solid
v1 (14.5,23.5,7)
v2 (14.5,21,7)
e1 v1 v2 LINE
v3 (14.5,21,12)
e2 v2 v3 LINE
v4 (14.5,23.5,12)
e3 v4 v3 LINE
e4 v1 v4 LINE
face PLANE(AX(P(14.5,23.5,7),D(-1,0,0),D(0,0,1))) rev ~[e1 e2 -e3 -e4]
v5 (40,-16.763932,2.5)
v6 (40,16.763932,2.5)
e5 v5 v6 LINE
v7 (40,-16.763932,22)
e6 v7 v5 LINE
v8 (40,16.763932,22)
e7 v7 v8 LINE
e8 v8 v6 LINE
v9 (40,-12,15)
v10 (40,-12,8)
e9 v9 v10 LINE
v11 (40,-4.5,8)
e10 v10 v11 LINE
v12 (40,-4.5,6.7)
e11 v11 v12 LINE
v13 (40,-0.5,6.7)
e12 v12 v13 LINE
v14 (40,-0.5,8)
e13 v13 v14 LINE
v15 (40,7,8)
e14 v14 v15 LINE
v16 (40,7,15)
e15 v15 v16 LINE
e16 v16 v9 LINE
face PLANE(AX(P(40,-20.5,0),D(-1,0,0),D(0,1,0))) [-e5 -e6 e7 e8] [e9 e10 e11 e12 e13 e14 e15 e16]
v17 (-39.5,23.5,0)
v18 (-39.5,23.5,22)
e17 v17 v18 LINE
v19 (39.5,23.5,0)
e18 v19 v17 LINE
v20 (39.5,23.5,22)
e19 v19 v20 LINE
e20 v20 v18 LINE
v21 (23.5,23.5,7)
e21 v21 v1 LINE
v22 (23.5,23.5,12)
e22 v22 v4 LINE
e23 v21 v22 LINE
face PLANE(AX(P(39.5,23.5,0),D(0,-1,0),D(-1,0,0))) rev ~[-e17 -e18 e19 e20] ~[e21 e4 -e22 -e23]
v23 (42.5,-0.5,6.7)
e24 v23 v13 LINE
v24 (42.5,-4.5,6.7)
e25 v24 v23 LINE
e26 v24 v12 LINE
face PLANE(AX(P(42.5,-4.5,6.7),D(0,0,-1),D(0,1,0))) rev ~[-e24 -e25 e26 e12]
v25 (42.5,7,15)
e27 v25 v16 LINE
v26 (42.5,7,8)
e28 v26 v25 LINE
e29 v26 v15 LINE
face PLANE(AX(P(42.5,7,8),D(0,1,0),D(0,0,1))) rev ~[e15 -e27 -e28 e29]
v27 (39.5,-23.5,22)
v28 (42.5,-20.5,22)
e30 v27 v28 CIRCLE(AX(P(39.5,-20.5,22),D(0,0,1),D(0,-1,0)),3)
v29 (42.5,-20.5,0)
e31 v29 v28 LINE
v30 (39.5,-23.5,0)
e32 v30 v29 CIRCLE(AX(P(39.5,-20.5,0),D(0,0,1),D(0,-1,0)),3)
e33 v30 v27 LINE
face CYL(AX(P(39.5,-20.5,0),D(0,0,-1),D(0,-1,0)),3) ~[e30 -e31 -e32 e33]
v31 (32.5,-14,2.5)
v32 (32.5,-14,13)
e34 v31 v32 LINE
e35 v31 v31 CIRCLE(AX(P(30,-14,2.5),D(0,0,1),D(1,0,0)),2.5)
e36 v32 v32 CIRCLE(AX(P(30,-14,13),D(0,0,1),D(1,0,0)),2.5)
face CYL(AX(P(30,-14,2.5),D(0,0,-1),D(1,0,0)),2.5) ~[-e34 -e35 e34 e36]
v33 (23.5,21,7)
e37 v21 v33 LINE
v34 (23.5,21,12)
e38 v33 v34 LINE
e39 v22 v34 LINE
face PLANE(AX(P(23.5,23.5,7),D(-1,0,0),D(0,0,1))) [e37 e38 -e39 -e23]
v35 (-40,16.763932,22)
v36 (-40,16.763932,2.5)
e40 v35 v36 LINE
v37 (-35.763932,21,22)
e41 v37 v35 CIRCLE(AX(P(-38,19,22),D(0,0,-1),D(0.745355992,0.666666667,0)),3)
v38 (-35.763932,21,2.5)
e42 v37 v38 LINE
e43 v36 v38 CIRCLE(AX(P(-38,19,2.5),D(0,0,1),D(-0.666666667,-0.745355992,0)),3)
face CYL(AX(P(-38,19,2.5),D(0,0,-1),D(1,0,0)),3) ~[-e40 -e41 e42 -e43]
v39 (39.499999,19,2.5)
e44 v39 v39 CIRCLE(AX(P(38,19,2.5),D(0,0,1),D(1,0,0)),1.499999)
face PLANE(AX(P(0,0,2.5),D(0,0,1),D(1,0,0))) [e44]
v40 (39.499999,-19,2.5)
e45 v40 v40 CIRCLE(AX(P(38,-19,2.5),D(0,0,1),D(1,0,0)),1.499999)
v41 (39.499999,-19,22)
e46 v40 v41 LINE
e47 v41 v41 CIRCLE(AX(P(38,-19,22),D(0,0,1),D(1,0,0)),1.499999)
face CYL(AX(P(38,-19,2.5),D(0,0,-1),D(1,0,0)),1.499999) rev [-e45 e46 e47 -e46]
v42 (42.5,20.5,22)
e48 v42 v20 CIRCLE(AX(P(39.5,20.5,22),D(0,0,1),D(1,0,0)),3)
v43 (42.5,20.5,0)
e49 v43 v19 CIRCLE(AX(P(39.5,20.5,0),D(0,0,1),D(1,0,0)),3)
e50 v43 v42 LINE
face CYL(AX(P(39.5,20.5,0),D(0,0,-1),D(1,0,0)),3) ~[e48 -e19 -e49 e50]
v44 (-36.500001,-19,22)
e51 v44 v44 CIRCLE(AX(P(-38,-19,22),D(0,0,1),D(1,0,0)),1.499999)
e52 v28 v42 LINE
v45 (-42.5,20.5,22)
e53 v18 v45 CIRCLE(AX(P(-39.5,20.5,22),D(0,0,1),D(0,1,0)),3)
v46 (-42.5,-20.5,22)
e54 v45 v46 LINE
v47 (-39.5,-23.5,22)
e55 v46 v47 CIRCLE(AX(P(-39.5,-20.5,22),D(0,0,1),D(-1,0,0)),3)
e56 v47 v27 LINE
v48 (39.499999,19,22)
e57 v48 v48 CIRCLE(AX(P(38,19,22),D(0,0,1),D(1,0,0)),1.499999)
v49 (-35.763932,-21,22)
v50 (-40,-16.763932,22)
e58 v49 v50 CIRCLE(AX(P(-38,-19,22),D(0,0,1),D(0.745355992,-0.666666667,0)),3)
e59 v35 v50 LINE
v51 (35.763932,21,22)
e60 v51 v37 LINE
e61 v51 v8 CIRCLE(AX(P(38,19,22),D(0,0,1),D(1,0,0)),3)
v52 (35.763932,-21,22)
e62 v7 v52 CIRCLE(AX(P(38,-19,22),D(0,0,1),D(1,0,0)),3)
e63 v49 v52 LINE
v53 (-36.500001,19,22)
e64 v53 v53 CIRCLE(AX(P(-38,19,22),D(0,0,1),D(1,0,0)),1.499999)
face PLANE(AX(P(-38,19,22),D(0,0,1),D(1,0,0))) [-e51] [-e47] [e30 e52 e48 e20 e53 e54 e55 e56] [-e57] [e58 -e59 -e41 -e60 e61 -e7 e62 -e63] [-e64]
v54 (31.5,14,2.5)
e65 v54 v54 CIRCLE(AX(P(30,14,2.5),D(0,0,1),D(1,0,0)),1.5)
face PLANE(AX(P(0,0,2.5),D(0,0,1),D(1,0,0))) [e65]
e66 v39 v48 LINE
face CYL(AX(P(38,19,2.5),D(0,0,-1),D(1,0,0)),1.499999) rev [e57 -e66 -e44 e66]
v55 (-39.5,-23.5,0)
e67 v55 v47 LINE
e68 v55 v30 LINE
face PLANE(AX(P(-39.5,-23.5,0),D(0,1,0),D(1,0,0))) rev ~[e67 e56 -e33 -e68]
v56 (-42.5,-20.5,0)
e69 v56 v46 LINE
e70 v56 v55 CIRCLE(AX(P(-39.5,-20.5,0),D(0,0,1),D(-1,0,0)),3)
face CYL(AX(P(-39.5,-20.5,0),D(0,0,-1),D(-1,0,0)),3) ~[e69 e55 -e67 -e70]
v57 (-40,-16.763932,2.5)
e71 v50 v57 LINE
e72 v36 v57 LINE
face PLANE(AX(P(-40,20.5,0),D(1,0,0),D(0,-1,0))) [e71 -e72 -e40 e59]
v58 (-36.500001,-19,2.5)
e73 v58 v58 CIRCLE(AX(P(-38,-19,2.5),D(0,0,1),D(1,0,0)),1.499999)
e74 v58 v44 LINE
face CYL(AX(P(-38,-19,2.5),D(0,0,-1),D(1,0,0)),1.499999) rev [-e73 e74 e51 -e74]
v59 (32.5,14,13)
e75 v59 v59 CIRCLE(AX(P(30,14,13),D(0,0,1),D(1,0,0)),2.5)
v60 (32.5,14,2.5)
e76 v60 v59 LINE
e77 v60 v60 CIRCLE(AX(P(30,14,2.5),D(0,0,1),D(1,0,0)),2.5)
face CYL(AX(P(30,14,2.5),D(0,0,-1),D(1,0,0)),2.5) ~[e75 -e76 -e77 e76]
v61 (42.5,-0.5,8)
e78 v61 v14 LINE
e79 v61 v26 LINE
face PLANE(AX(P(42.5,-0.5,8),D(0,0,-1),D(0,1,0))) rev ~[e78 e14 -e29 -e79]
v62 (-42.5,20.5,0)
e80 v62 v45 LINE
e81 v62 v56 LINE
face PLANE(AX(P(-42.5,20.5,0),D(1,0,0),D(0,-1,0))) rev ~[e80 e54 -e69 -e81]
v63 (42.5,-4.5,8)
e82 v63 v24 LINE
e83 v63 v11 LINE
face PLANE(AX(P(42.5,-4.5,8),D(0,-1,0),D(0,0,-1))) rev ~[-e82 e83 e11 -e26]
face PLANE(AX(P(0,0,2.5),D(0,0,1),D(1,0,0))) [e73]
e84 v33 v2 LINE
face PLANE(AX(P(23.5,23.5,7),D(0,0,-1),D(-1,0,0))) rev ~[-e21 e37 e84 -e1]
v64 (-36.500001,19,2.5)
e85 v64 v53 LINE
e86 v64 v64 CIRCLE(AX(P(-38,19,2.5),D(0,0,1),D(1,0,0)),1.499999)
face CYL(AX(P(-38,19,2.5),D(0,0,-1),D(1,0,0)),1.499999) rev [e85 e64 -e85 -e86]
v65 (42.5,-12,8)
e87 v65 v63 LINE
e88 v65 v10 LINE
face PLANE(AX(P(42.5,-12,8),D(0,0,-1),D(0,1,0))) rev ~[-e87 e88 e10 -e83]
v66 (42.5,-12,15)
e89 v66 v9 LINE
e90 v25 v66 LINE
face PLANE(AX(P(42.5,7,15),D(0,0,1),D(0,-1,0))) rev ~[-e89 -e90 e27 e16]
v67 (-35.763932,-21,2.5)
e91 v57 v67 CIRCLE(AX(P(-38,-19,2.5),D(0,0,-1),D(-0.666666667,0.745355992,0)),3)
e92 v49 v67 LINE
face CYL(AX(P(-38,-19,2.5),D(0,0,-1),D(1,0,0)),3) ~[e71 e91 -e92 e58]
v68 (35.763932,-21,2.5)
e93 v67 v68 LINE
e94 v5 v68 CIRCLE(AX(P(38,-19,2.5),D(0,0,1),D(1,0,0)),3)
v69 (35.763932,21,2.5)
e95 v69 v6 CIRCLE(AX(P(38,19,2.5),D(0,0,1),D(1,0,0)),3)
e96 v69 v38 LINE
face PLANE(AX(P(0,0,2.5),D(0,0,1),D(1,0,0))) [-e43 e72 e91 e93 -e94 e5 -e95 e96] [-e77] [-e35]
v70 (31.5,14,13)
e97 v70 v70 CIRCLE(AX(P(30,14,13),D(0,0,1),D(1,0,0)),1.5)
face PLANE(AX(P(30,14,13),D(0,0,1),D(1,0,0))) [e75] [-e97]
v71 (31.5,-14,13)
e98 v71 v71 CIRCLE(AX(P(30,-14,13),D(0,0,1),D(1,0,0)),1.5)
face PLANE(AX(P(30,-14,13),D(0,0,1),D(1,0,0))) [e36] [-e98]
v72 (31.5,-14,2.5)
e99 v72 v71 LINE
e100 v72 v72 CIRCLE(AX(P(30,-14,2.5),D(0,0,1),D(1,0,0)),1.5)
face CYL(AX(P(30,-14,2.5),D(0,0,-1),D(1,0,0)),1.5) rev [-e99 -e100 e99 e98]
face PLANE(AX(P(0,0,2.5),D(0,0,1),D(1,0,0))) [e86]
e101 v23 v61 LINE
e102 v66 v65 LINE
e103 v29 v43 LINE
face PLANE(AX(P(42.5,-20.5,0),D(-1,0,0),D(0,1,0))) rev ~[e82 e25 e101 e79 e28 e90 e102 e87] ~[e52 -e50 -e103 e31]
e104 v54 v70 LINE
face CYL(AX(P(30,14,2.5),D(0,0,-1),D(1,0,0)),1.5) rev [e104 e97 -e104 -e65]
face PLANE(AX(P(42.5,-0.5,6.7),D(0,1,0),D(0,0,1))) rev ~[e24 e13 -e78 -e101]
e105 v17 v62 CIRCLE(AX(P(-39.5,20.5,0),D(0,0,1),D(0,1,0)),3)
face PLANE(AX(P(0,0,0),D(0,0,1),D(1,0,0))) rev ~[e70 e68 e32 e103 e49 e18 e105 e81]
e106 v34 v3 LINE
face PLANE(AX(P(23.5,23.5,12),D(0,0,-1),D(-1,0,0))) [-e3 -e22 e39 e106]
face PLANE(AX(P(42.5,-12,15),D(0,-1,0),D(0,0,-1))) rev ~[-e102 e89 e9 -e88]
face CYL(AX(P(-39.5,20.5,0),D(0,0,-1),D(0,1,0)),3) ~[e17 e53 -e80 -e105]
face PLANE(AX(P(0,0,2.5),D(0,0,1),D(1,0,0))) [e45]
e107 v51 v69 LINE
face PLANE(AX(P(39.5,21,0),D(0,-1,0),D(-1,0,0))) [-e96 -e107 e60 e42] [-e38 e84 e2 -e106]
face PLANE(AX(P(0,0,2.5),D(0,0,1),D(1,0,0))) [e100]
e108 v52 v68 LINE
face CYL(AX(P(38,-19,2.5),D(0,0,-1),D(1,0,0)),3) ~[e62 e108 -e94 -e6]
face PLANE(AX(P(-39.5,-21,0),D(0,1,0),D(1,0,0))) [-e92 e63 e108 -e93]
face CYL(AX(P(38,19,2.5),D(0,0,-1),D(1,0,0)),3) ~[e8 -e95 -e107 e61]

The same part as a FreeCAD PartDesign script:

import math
import FreeCAD as App
import Part
import Sketcher

V = App.Vector


def faces_at(feature, points):
    """Names of the faces that lie closest to the given points."""
    faces = feature.Shape.Faces
    near = lambda p: min(range(len(faces)), key=lambda i: faces[i].distToShape(Part.Vertex(*p))[0])
    return sorted({f"Face{near(p) + 1}" for p in points})


def add_polygon(sketch, points):
    """Adds a closed chain of lines whose ends are joined by coincident constraints."""
    first, n = sketch.GeometryCount, len(points)
    for a, b in zip(points, points[1:] + points[:1]):
        sketch.addGeometry(Part.LineSegment(App.Vector(*a, 0), App.Vector(*b, 0)), False)
    for i in range(n):
        sketch.addConstraint(Sketcher.Constraint("Coincident", first + i, 2, first + (i + 1) % n, 1))

doc = App.newDocument("Part")
params = doc.addObject("Spreadsheet::Sheet", "Params")
for row, (alias, value) in enumerate([
    ("sketch1_radius", "3 mm"),
    ("sketch1_width", "79 mm"),
    ("sketch1_height", "41 mm"),
    ("pad1_length", "22 mm"),
    ("thickness_wall", "2.5 mm"),
    ("sketch2_diameter", "6 mm"),
    ("sketch2_diameter2", "2.999999 mm"),
    ("pad2_length", "19.5 mm"),
    ("sketch3_width", "19 mm"),
    ("sketch3_width2", "4 mm"),
    ("sketch3_height", "7 mm"),
    ("sketch3_height2", "1.3 mm"),
    ("pocket1_length", "2.5 mm"),
    ("sketch4_width", "9 mm"),
    ("sketch4_height", "5 mm"),
    ("pocket2_length", "2.5 mm"),
    ("sketch5_diameter", "5 mm"),
    ("sketch5_diameter2", "3 mm"),
    ("pad3_length", "10.5 mm"),
], start=1):
    params.set(f"A{row}", alias)
    params.set(f"B{row}", "=" + value)
    params.setAlias(f"B{row}", alias)

body = doc.addObject("PartDesign::Body", "Body")

sketch1 = body.newObject("Sketcher::SketchObject", "Sketch")
sketch1.AttachmentSupport = (doc.getObject("XY_Plane"), [""])
sketch1.MapMode = "FlatFace"
sketch1.addGeometry([
    Part.ArcOfCircle(Part.Circle(V(39.5, 20.5, 0), V(0, 0, 1), 3), math.radians(0), math.radians(90)),
    Part.LineSegment(V(39.5, 23.5, 0), V(-39.5, 23.5, 0)),
    Part.ArcOfCircle(Part.Circle(V(-39.5, 20.5, 0), V(0, 0, 1), 3), math.radians(90), math.radians(180)),
    Part.LineSegment(V(-42.5, 20.5, 0), V(-42.5, -20.5, 0)),
    Part.ArcOfCircle(Part.Circle(V(-39.5, -20.5, 0), V(0, 0, 1), 3), math.radians(180), math.radians(270)),
    Part.LineSegment(V(-39.5, -23.5, 0), V(39.5, -23.5, 0)),
    Part.ArcOfCircle(Part.Circle(V(39.5, -20.5, 0), V(0, 0, 1), 3), math.radians(-90), math.radians(0)),
    Part.LineSegment(V(42.5, -20.5, 0), V(42.5, 20.5, 0)),
], False)
sketch1.addConstraint([
    Sketcher.Constraint("Tangent", 0, 2, 1, 1),
    Sketcher.Constraint("Tangent", 1, 2, 2, 1),
    Sketcher.Constraint("Tangent", 2, 2, 3, 1),
    Sketcher.Constraint("Tangent", 3, 2, 4, 1),
    Sketcher.Constraint("Tangent", 4, 2, 5, 1),
    Sketcher.Constraint("Tangent", 5, 2, 6, 1),
    Sketcher.Constraint("Tangent", 6, 2, 7, 1),
    Sketcher.Constraint("Tangent", 7, 2, 0, 1),
    Sketcher.Constraint("Horizontal", 1),
    Sketcher.Constraint("Vertical", 3),
    Sketcher.Constraint("Horizontal", 5),
    Sketcher.Constraint("Vertical", 7),
    Sketcher.Constraint("Equal", 0, 2),
    Sketcher.Constraint("Equal", 2, 4),
    Sketcher.Constraint("Equal", 4, 6),
    Sketcher.Constraint("Symmetric", 0, 3, 4, 3, -1, 1),
    Sketcher.Constraint("Radius", 0, 3.0),
    Sketcher.Constraint("DistanceX", 1, 2, 1, 1, 79.0),
    Sketcher.Constraint("DistanceY", 3, 2, 3, 1, 41.0),
])
sketch1.setExpression("Constraints[16]", "Params.sketch1_radius")
sketch1.setExpression("Constraints[17]", "Params.sketch1_width")
sketch1.setExpression("Constraints[18]", "Params.sketch1_height")
pad1 = body.newObject("PartDesign::Pad", "Pad")
pad1.Profile = sketch1
pad1.setExpression("Length", "Params.pad1_length")
doc.recompute()

thickness = body.newObject("PartDesign::Thickness", "Thickness")
thickness.Base = (pad1, faces_at(pad1, [(0, 0, 22)]))
thickness.setExpression("Value", "Params.thickness_wall")
thickness.Reversed = True
thickness.Join = "Arc"

sketch2 = body.newObject("Sketcher::SketchObject", "Sketch001")
sketch2.AttachmentSupport = (doc.getObject("XY_Plane"), [""])
sketch2.MapMode = "FlatFace"
sketch2.AttachmentOffset = App.Placement(V(0, 0, 2.5), App.Rotation())
sketch2.addGeometry([
    Part.Circle(V(-38, 19, 0), V(0, 0, 1), 3),
    Part.Circle(V(-38, 19, 0), V(0, 0, 1), 1.499999),
    Part.Circle(V(38, 19, 0), V(0, 0, 1), 3),
    Part.Circle(V(38, 19, 0), V(0, 0, 1), 1.499999),
    Part.Circle(V(38, -19, 0), V(0, 0, 1), 3),
    Part.Circle(V(38, -19, 0), V(0, 0, 1), 1.499999),
    Part.Circle(V(-38, -19, 0), V(0, 0, 1), 3),
    Part.Circle(V(-38, -19, 0), V(0, 0, 1), 1.499999),
], False)
sketch2.addConstraint([
    Sketcher.Constraint("Coincident", 1, 3, 0, 3),
    Sketcher.Constraint("Coincident", 3, 3, 2, 3),
    Sketcher.Constraint("Coincident", 5, 3, 4, 3),
    Sketcher.Constraint("Coincident", 7, 3, 6, 3),
    Sketcher.Constraint("Equal", 0, 2),
    Sketcher.Constraint("Equal", 1, 3),
    Sketcher.Constraint("Equal", 2, 4),
    Sketcher.Constraint("Equal", 3, 5),
    Sketcher.Constraint("Equal", 4, 6),
    Sketcher.Constraint("Equal", 5, 7),
    Sketcher.Constraint("Symmetric", 0, 3, 4, 3, -1, 1),
    Sketcher.Constraint("Symmetric", 2, 3, 6, 3, -1, 1),
    Sketcher.Constraint("Symmetric", 0, 3, 2, 3, -2),
    Sketcher.Constraint("Diameter", 0, 6.0),
    Sketcher.Constraint("Diameter", 1, 2.999999),
    Sketcher.Constraint("DistanceX", 0, 3, -1, 1, 38.0),
    Sketcher.Constraint("DistanceY", -1, 1, 0, 3, 19.0),
])
sketch2.setExpression("Constraints[13]", "Params.sketch2_diameter")
sketch2.setExpression("Constraints[14]", "Params.sketch2_diameter2")
pad2 = body.newObject("PartDesign::Pad", "Pad001")
pad2.Profile = sketch2
pad2.setExpression("Length", "Params.pad2_length")

sketch3 = body.newObject("Sketcher::SketchObject", "Sketch002")
sketch3.AttachmentSupport = (doc.getObject("YZ_Plane"), [""])
sketch3.MapMode = "FlatFace"
sketch3.AttachmentOffset = App.Placement(V(0, 0, 42.5), App.Rotation())
add_polygon(sketch3, [(7, 15), (-12, 15), (-12, 8), (-4.5, 8), (-4.5, 6.7), (-0.5, 6.7), (-0.5, 8), (7, 8)])
sketch3.addConstraint([
    Sketcher.Constraint("Horizontal", 0),
    Sketcher.Constraint("Vertical", 1),
    Sketcher.Constraint("Horizontal", 2),
    Sketcher.Constraint("Vertical", 3),
    Sketcher.Constraint("Horizontal", 4),
    Sketcher.Constraint("Vertical", 5),
    Sketcher.Constraint("Horizontal", 6),
    Sketcher.Constraint("Vertical", 7),
    Sketcher.Constraint("Horizontal", 2, 2, 5, 2),
    Sketcher.Constraint("Equal", 2, 6),
    Sketcher.Constraint("DistanceX", 0, 2, 0, 1, 19.0),
    Sketcher.Constraint("DistanceX", 4, 1, 4, 2, 4.0),
    Sketcher.Constraint("DistanceY", 1, 2, 1, 1, 7.0),
    Sketcher.Constraint("DistanceY", 3, 2, 3, 1, 1.3),
    Sketcher.Constraint("DistanceX", 0, 2, -1, 1, 12.0),
    Sketcher.Constraint("DistanceY", -1, 1, 0, 2, 15.0),
])
sketch3.setExpression("Constraints[18]", "Params.sketch3_width")
sketch3.setExpression("Constraints[19]", "Params.sketch3_width2")
sketch3.setExpression("Constraints[20]", "Params.sketch3_height")
sketch3.setExpression("Constraints[21]", "Params.sketch3_height2")
pocket1 = body.newObject("PartDesign::Pocket", "Pocket")
pocket1.Profile = sketch3
pocket1.setExpression("Length", "Params.pocket1_length")

sketch4 = body.newObject("Sketcher::SketchObject", "Sketch003")
sketch4.AttachmentSupport = (doc.getObject("XZ_Plane"), [""])
sketch4.MapMode = "FlatFace"
sketch4.AttachmentOffset = App.Placement(V(0, 0, -23.5), App.Rotation())
add_polygon(sketch4, [(23.5, 12), (23.5, 7), (14.5, 7), (14.5, 12)])
sketch4.addConstraint([
    Sketcher.Constraint("Vertical", 0),
    Sketcher.Constraint("Horizontal", 1),
    Sketcher.Constraint("Vertical", 2),
    Sketcher.Constraint("Horizontal", 3),
    Sketcher.Constraint("DistanceX", 1, 2, 1, 1, 9.0),
    Sketcher.Constraint("DistanceY", 0, 2, 0, 1, 5.0),
    Sketcher.Constraint("DistanceY", -1, 1, 0, 2, 7.0),
    Sketcher.Constraint("DistanceX", -1, 1, 0, 2, 23.5),
])
sketch4.setExpression("Constraints[8]", "Params.sketch4_width")
sketch4.setExpression("Constraints[9]", "Params.sketch4_height")
pocket2 = body.newObject("PartDesign::Pocket", "Pocket001")
pocket2.Profile = sketch4
pocket2.setExpression("Length", "Params.pocket2_length")
pocket2.Reversed = True

sketch5 = body.newObject("Sketcher::SketchObject", "Sketch004")
sketch5.AttachmentSupport = (doc.getObject("XY_Plane"), [""])
sketch5.MapMode = "FlatFace"
sketch5.AttachmentOffset = App.Placement(V(0, 0, 2.5), App.Rotation())
sketch5.addGeometry([
    Part.Circle(V(30, 14, 0), V(0, 0, 1), 2.5),
    Part.Circle(V(30, 14, 0), V(0, 0, 1), 1.5),
    Part.Circle(V(30, -14, 0), V(0, 0, 1), 2.5),
    Part.Circle(V(30, -14, 0), V(0, 0, 1), 1.5),
], False)
sketch5.addConstraint([
    Sketcher.Constraint("Coincident", 1, 3, 0, 3),
    Sketcher.Constraint("Coincident", 3, 3, 2, 3),
    Sketcher.Constraint("Equal", 0, 2),
    Sketcher.Constraint("Equal", 1, 3),
    Sketcher.Constraint("Symmetric", 0, 3, 2, 3, -1),
    Sketcher.Constraint("Diameter", 0, 5.0),
    Sketcher.Constraint("Diameter", 1, 3.0),
    Sketcher.Constraint("DistanceX", -1, 1, 0, 3, 30.0),
    Sketcher.Constraint("DistanceY", -1, 1, 0, 3, 14.0),
])
sketch5.setExpression("Constraints[5]", "Params.sketch5_diameter")
sketch5.setExpression("Constraints[6]", "Params.sketch5_diameter2")
pad3 = body.newObject("PartDesign::Pad", "Pad002")
pad3.Profile = sketch5
pad3.setExpression("Length", "Params.pad3_length")

doc.recompute()
